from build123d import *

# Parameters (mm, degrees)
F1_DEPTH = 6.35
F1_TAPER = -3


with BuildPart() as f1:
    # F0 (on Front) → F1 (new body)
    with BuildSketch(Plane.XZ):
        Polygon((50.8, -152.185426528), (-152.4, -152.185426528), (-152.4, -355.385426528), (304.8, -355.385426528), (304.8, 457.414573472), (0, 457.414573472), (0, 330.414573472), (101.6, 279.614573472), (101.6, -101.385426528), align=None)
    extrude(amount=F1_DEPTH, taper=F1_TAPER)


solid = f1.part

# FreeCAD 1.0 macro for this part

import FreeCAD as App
import Part
import Sketcher

V = App.Vector
Q = App.Units.Quantity

doc = App.newDocument("Part")
body = doc.addObject("PartDesign::Body", "Body")

sketch1 = body.newObject("Sketcher::SketchObject", "Sketch")
sketch1.AttachmentSupport = (doc.getObject("XZ_Plane"), [""])
sketch1.MapMode = "FlatFace"
sketch1.addGeometry([
    Part.LineSegment(V(50.8, -152.185427, 0), V(-152.4, -152.185427, 0)),
    Part.LineSegment(V(-152.4, -152.185427, 0), V(-152.4, -355.385427, 0)),
    Part.LineSegment(V(-152.4, -355.385427, 0), V(304.8, -355.385427, 0)),
    Part.LineSegment(V(304.8, -355.385427, 0), V(304.8, 457.414573, 0)),
    Part.LineSegment(V(304.8, 457.414573, 0), V(0, 457.414573, 0)),
    Part.LineSegment(V(0, 457.414573, 0), V(0, 330.414573, 0)),
    Part.LineSegment(V(0, 330.414573, 0), V(101.6, 279.614573, 0)),
    Part.LineSegment(V(101.6, 279.614573, 0), V(101.6, -101.385427, 0)),
    Part.LineSegment(V(101.6, -101.385427, 0), V(50.8, -152.185427, 0)),
], False)
sketch1.addConstraint([
    Sketcher.Constraint("Coincident", 0, 2, 1, 1),
    Sketcher.Constraint("Coincident", 1, 2, 2, 1),
    Sketcher.Constraint("Coincident", 2, 2, 3, 1),
    Sketcher.Constraint("Coincident", 3, 2, 4, 1),
    Sketcher.Constraint("Coincident", 4, 2, 5, 1),
    Sketcher.Constraint("Coincident", 5, 2, 6, 1),
    Sketcher.Constraint("Coincident", 6, 2, 7, 1),
    Sketcher.Constraint("Coincident", 7, 2, 8, 1),
    Sketcher.Constraint("Coincident", 8, 2, 0, 1),
    Sketcher.Constraint("Horizontal", 0),
    Sketcher.Constraint("Vertical", 1),
    Sketcher.Constraint("Horizontal", 2),
    Sketcher.Constraint("Vertical", 3),
    Sketcher.Constraint("Horizontal", 4),
    Sketcher.Constraint("Vertical", 5),
    Sketcher.Constraint("Vertical", 7),
    Sketcher.Constraint("PointOnObject", 4, 2, -2),
    Sketcher.Constraint("Equal", 0, 1),
    Sketcher.Constraint("DistanceX", 0, 2, 0, 1, Q("8 in")),
    Sketcher.Constraint("DistanceX", 2, 1, 2, 2, Q("18 in")),
    Sketcher.Constraint("DistanceX", 4, 2, 4, 1, Q("12 in")),
    Sketcher.Constraint("DistanceY", 3, 1, 3, 2, Q("32 in")),
    Sketcher.Constraint("DistanceY", 5, 2, 5, 1, Q("5 in")),
    Sketcher.Constraint("DistanceY", 7, 2, 7, 1, Q("15 in")),
    Sketcher.Constraint("DistanceX", -1, 1, 6, 2, Q("4 in")),
    Sketcher.Constraint("Angle", 8, Q("-135 deg")),
    Sketcher.Constraint("DistanceY", 0, 2, -1, 1, Q("152.185427 mm")),
])
pad1 = body.newObject("PartDesign::Pad", "Pad")
pad1.Profile = sketch1
pad1.Length = Q("0.25 in")
pad1.TaperAngle = 3

doc.recompute()
